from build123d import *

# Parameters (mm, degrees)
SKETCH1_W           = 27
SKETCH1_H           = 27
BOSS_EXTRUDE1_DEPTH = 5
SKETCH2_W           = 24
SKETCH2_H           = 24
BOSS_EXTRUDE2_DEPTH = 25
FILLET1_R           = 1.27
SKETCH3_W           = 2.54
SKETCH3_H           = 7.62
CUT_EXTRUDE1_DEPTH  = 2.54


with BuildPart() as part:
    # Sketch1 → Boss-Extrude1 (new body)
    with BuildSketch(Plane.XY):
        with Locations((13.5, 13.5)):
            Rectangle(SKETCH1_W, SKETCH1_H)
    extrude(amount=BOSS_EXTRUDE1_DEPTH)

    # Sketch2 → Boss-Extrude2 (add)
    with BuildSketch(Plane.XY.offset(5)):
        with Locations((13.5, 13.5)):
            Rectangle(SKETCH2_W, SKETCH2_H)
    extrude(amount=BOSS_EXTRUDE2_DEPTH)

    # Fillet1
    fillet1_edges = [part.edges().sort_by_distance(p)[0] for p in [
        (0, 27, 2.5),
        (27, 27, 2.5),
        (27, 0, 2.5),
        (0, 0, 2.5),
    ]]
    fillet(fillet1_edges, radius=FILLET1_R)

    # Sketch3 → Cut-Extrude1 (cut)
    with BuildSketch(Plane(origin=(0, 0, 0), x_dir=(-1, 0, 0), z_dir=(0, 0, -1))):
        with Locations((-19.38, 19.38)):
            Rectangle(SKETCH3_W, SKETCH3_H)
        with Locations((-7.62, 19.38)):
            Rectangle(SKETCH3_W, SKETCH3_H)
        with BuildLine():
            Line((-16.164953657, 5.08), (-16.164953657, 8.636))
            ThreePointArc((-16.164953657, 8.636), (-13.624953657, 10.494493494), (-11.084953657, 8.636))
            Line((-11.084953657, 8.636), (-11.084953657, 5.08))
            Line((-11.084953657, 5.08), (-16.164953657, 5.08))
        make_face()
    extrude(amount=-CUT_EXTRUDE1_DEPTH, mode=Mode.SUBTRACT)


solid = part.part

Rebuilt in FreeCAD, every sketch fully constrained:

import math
import FreeCAD as App
import Part
import Sketcher
from FreeCAD import Vector
Q = App.Units.Quantity


def edges_at(feature, points):
    """Names of the edges that pass closest to the given points."""
    edges = feature.Shape.Edges
    near = lambda p: min(range(len(edges)), key=lambda i: edges[i].distToShape(Part.Vertex(*p))[0])
    return sorted({f"Edge{near(p) + 1}" for p in points})

doc = App.newDocument("Part")
body = doc.addObject("PartDesign::Body", "Body")

sketch1 = doc.addObject("Sketcher::SketchObject", "Sketch")
body.addObject(sketch1)
sketch1.AttachmentSupport = (doc.XY_Plane, [""])
sketch1.MapMode = "FlatFace"
sketch1.addGeometry([
    Part.LineSegment(Vector(0, 27, 0), Vector(0, 0, 0)),
    Part.LineSegment(Vector(0, 0, 0), Vector(27, 0, 0)),
    Part.LineSegment(Vector(27, 0, 0), Vector(27, 27, 0)),
    Part.LineSegment(Vector(27, 27, 0), Vector(0, 27, 0)),
], False)
sketch1.addConstraint([
    Sketcher.Constraint("Coincident", 0, 2, 1, 1),
    Sketcher.Constraint("Coincident", 1, 2, 2, 1),
    Sketcher.Constraint("Coincident", 2, 2, 3, 1),
    Sketcher.Constraint("Coincident", 3, 2, 0, 1),
    Sketcher.Constraint("Vertical", 0),
    Sketcher.Constraint("Horizontal", 1),
    Sketcher.Constraint("Vertical", 2),
    Sketcher.Constraint("Horizontal", 3),
    Sketcher.Constraint("Coincident", 0, 2, -1, 1),
    Sketcher.Constraint("Equal", 3, 0),
    Sketcher.Constraint("DistanceX", 1, 1, 1, 2, Q("27 mm")),
])
pad1 = doc.addObject("PartDesign::Pad", "Pad")
body.addObject(pad1)
pad1.Profile = sketch1
pad1.Length = 5

sketch2 = doc.addObject("Sketcher::SketchObject", "Sketch001")
body.addObject(sketch2)
sketch2.AttachmentSupport = (doc.XY_Plane, [""])
sketch2.MapMode = "FlatFace"
sketch2.AttachmentOffset = App.Placement(Vector(0, 0, 5), App.Rotation())
sketch2.addGeometry([
    Part.LineSegment(Vector(2, 26, 0), Vector(2, 2, 0)),
    Part.LineSegment(Vector(2, 2, 0), Vector(26, 2, 0)),
    Part.LineSegment(Vector(26, 2, 0), Vector(26, 26, 0)),
    Part.LineSegment(Vector(26, 26, 0), Vector(2, 26, 0)),
], False)
sketch2.addConstraint([
    Sketcher.Constraint("Coincident", 0, 2, 1, 1),
    Sketcher.Constraint("Coincident", 1, 2, 2, 1),
    Sketcher.Constraint("Coincident", 2, 2, 3, 1),
    Sketcher.Constraint("Coincident", 3, 2, 0, 1),
    Sketcher.Constraint("Vertical", 0),
    Sketcher.Constraint("Horizontal", 1),
    Sketcher.Constraint("Vertical", 2),
    Sketcher.Constraint("Horizontal", 3),
    Sketcher.Constraint("Equal", 3, 0),
    Sketcher.Constraint("DistanceX", 1, 1, 1, 2, Q("24 mm")),
    Sketcher.Constraint("DistanceX", -1, 1, 0, 2, Q("1.5 mm")),
    Sketcher.Constraint("DistanceY", -1, 1, 0, 2, Q("1.5 mm")),
])
pad2 = doc.addObject("PartDesign::Pad", "Pad001")
body.addObject(pad2)
pad2.Profile = sketch2
pad2.Length = 25
doc.recompute()

fillet = doc.addObject("PartDesign::Fillet", "Fillet")
body.addObject(fillet)
fillet.Base = (pad2, edges_at(pad2, [
    (0, 27, 2.5),
    (27, 27, 2.5),
    (27, 0, 2.5),
    (0, 0, 2.5),
]))
fillet.Radius = Q("0.05 in")

sketch3 = doc.addObject("Sketcher::SketchObject", "Sketch002")
body.addObject(sketch3)
sketch3.AttachmentSupport = (doc.XY_Plane, [""])
sketch3.MapMode = "FlatFace"
sketch3.addGeometry([
    Part.LineSegment(Vector(20.6, 23.2, 0), Vector(20.6, 15.6, 0)),
    Part.LineSegment(Vector(20.6, 15.6, 0), Vector(18.1, 15.6, 0)),
    Part.LineSegment(Vector(18.1, 15.6, 0), Vector(18.1, 23.2, 0)),
    Part.LineSegment(Vector(18.1, 23.2, 0), Vector(20.6, 23.2, 0)),
    Part.LineSegment(Vector(8.9, 23.2, 0), Vector(8.9, 15.6, 0)),
    Part.LineSegment(Vector(8.9, 15.6, 0), Vector(6.3, 15.6, 0)),
    Part.LineSegment(Vector(6.3, 15.6, 0), Vector(6.3, 23.2, 0)),
    Part.LineSegment(Vector(6.3, 23.2, 0), Vector(8.9, 23.2, 0)),
    Part.LineSegment(Vector(16.2, 8.6, 0), Vector(16.2, 5.1, 0)),
    Part.LineSegment(Vector(16.2, 5.1, 0), Vector(11.1, 5.1, 0)),
    Part.LineSegment(Vector(11.1, 5.1, 0), Vector(11.1, 8.6, 0)),
    Part.ArcOfCircle(Part.Circle(Vector(13.6, 7.8, 0), Vector(0, 0, 1), 2.7), math.radians(18), math.radians(162)),
], False)
sketch3.addConstraint([
    Sketcher.Constraint("Coincident", 0, 2, 1, 1),
    Sketcher.Constraint("Coincident", 1, 2, 2, 1),
    Sketcher.Constraint("Coincident", 2, 2, 3, 1),
    Sketcher.Constraint("Coincident", 3, 2, 0, 1),
    Sketcher.Constraint("Coincident", 4, 2, 5, 1),
    Sketcher.Constraint("Coincident", 5, 2, 6, 1),
    Sketcher.Constraint("Coincident", 6, 2, 7, 1),
    Sketcher.Constraint("Coincident", 7, 2, 4, 1),
    Sketcher.Constraint("Coincident", 8, 2, 9, 1),
    Sketcher.Constraint("Coincident", 9, 2, 10, 1),
    Sketcher.Constraint("Coincident", 10, 2, 11, 2),
    Sketcher.Constraint("Coincident", 11, 1, 8, 1),
    Sketcher.Constraint("Vertical", 0),
    Sketcher.Constraint("Horizontal", 1),
    Sketcher.Constraint("Vertical", 2),
    Sketcher.Constraint("Horizontal", 3),
    Sketcher.Constraint("Vertical", 4),
    Sketcher.Constraint("Horizontal", 5),
    Sketcher.Constraint("Vertical", 6),
    Sketcher.Constraint("Horizontal", 7),
    Sketcher.Constraint("Vertical", 8),
    Sketcher.Constraint("Horizontal", 9),
    Sketcher.Constraint("Vertical", 10),
    Sketcher.Constraint("Horizontal", 1, 2, 4, 2),
    Sketcher.Constraint("Horizontal", 3, 2, 6, 2),
    Sketcher.Constraint("Horizontal", 10, 2, 11, 1),
    Sketcher.Constraint("Equal", 3, 5),
    Sketcher.Constraint("DistanceX", 1, 2, 1, 1, Q("0.1 in")),
    Sketcher.Constraint("DistanceX", 9, 2, 9, 1, Q("0.2 in")),
    Sketcher.Constraint("DistanceY", 0, 2, 0, 1, Q("0.3 in")),
    Sketcher.Constraint("DistanceY", 8, 2, 8, 1, Q("0.14 in")),
    Sketcher.Constraint("DistanceY", -1, 1, 8, 2, Q("0.2 in")),
    Sketcher.Constraint("DistanceX", -1, 1, 4, 2, Q("0.35 in")),
    Sketcher.Constraint("Radius", 11, Q("2.664954 mm")),
    Sketcher.Constraint("DistanceX", -1, 1, 0, 2, Q("20.65 mm")),
    Sketcher.Constraint("DistanceY", -1, 1, 0, 2, Q("15.57 mm")),
    Sketcher.Constraint("DistanceX", -1, 1, 11, 3, Q("13.624954 mm")),
])
pocket1 = doc.addObject("PartDesign::Pocket", "Pocket")
body.addObject(pocket1)
pocket1.Profile = sketch3
pocket1.Length = Q("0.1 in")
pocket1.Reversed = True

doc.recompute()
